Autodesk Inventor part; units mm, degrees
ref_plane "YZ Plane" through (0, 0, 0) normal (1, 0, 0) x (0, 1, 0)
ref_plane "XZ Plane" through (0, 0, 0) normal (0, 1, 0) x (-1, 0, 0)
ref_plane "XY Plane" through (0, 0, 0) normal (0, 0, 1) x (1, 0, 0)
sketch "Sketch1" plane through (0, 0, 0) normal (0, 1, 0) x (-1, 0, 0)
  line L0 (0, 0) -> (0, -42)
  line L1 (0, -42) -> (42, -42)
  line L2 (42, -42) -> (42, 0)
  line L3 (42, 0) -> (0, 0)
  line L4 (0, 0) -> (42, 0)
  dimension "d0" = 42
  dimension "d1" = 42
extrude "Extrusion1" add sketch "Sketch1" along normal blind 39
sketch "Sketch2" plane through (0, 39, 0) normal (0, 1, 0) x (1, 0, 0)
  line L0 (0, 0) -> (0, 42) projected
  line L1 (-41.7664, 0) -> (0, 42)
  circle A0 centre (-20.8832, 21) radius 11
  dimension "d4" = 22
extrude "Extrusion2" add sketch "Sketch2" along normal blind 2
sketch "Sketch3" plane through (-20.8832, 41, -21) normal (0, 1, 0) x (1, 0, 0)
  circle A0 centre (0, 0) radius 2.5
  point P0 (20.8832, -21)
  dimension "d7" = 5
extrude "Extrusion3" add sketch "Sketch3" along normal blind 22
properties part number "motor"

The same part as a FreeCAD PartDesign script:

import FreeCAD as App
import Part
import Sketcher

V = App.Vector

doc = App.newDocument("Part")
params = doc.addObject("Spreadsheet::Sheet", "Params")
for row, (alias, value) in enumerate([
    ("sketch1_width", "42 mm"),
    ("pad1_length", "39 mm"),
    ("sketch2_diameter", "22 mm"),
    ("pad2_length", "2 mm"),
    ("sketch3_diameter", "5 mm"),
    ("pad3_length", "22 mm"),
], start=1):
    params.set(f"A{row}", alias)
    params.set(f"B{row}", "=" + value)
    params.setAlias(f"B{row}", alias)

body = doc.addObject("PartDesign::Body", "Body")

# Sketch on XZ plane
sketch1 = body.newObject("Sketcher::SketchObject", "Sketch")
sketch1.AttachmentSupport = (doc.getObject("XZ_Plane"), [""])
sketch1.MapMode = "FlatFace"
sketch1.addGeometry([
    Part.LineSegment(V(-42, 0, 0), V(0, 0, 0)),
    Part.LineSegment(V(0, 0, 0), V(0, -42, 0)),
    Part.LineSegment(V(0, -42, 0), V(-42, -42, 0)),
    Part.LineSegment(V(-42, -42, 0), V(-42, 0, 0)),
], False)
sketch1.addConstraint([
    Sketcher.Constraint("Coincident", 0, 2, 1, 1),
    Sketcher.Constraint("Coincident", 1, 2, 2, 1),
    Sketcher.Constraint("Coincident", 2, 2, 3, 1),
    Sketcher.Constraint("Coincident", 3, 2, 0, 1),
    Sketcher.Constraint("Horizontal", 0),
    Sketcher.Constraint("Vertical", 1),
    Sketcher.Constraint("Horizontal", 2),
    Sketcher.Constraint("Vertical", 3),
    Sketcher.Constraint("Coincident", 0, 2, -1, 1),
    Sketcher.Constraint("Equal", 2, 1),
    Sketcher.Constraint("DistanceX", 0, 1, 0, 2, 42.0),
])
sketch1.setExpression("Constraints[10]", "Params.sketch1_width")
pad1 = body.newObject("PartDesign::Pad", "Pad")
pad1.Profile = sketch1
pad1.setExpression("Length", "Params.pad1_length")
pad1.Reversed = True

# Sketch on XZ plane
sketch2 = body.newObject("Sketcher::SketchObject", "Sketch001")
sketch2.AttachmentSupport = (doc.getObject("XZ_Plane"), [""])
sketch2.MapMode = "FlatFace"
sketch2.AttachmentOffset = App.Placement(V(0, 0, -39), App.Rotation())
sketch2.addGeometry(Part.Circle(V(-21, -21, 0), V(0, 0, 1), 11), False)
sketch2.addConstraint([
    Sketcher.Constraint("Diameter", 0, 22.0),
    Sketcher.Constraint("DistanceY", 0, 3, -1, 1, 21.0),
    Sketcher.Constraint("DistanceX", 0, 3, -1, 1, 20.8832),
])
sketch2.setExpression("Constraints[0]", "Params.sketch2_diameter")
pad2 = body.newObject("PartDesign::Pad", "Pad001")
pad2.Profile = sketch2
pad2.setExpression("Length", "Params.pad2_length")
pad2.Reversed = True

# Sketch on XZ plane
sketch3 = body.newObject("Sketcher::SketchObject", "Sketch002")
sketch3.AttachmentSupport = (doc.getObject("XZ_Plane"), [""])
sketch3.MapMode = "FlatFace"
sketch3.AttachmentOffset = App.Placement(V(0, 0, -41), App.Rotation())
sketch3.addGeometry(Part.Circle(V(-20.9, -21, 0), V(0, 0, 1), 2.5), False)
sketch3.addConstraint([
    Sketcher.Constraint("Diameter", 0, 5.0),
    Sketcher.Constraint("DistanceY", 0, 3, -1, 1, 21.0),
    Sketcher.Constraint("DistanceX", 0, 3, -1, 1, 20.8832),
])
sketch3.setExpression("Constraints[0]", "Params.sketch3_diameter")
pad3 = body.newObject("PartDesign::Pad", "Pad002")
pad3.Profile = sketch3
pad3.setExpression("Length", "Params.pad3_length")
pad3.Reversed = True

doc.recompute()
